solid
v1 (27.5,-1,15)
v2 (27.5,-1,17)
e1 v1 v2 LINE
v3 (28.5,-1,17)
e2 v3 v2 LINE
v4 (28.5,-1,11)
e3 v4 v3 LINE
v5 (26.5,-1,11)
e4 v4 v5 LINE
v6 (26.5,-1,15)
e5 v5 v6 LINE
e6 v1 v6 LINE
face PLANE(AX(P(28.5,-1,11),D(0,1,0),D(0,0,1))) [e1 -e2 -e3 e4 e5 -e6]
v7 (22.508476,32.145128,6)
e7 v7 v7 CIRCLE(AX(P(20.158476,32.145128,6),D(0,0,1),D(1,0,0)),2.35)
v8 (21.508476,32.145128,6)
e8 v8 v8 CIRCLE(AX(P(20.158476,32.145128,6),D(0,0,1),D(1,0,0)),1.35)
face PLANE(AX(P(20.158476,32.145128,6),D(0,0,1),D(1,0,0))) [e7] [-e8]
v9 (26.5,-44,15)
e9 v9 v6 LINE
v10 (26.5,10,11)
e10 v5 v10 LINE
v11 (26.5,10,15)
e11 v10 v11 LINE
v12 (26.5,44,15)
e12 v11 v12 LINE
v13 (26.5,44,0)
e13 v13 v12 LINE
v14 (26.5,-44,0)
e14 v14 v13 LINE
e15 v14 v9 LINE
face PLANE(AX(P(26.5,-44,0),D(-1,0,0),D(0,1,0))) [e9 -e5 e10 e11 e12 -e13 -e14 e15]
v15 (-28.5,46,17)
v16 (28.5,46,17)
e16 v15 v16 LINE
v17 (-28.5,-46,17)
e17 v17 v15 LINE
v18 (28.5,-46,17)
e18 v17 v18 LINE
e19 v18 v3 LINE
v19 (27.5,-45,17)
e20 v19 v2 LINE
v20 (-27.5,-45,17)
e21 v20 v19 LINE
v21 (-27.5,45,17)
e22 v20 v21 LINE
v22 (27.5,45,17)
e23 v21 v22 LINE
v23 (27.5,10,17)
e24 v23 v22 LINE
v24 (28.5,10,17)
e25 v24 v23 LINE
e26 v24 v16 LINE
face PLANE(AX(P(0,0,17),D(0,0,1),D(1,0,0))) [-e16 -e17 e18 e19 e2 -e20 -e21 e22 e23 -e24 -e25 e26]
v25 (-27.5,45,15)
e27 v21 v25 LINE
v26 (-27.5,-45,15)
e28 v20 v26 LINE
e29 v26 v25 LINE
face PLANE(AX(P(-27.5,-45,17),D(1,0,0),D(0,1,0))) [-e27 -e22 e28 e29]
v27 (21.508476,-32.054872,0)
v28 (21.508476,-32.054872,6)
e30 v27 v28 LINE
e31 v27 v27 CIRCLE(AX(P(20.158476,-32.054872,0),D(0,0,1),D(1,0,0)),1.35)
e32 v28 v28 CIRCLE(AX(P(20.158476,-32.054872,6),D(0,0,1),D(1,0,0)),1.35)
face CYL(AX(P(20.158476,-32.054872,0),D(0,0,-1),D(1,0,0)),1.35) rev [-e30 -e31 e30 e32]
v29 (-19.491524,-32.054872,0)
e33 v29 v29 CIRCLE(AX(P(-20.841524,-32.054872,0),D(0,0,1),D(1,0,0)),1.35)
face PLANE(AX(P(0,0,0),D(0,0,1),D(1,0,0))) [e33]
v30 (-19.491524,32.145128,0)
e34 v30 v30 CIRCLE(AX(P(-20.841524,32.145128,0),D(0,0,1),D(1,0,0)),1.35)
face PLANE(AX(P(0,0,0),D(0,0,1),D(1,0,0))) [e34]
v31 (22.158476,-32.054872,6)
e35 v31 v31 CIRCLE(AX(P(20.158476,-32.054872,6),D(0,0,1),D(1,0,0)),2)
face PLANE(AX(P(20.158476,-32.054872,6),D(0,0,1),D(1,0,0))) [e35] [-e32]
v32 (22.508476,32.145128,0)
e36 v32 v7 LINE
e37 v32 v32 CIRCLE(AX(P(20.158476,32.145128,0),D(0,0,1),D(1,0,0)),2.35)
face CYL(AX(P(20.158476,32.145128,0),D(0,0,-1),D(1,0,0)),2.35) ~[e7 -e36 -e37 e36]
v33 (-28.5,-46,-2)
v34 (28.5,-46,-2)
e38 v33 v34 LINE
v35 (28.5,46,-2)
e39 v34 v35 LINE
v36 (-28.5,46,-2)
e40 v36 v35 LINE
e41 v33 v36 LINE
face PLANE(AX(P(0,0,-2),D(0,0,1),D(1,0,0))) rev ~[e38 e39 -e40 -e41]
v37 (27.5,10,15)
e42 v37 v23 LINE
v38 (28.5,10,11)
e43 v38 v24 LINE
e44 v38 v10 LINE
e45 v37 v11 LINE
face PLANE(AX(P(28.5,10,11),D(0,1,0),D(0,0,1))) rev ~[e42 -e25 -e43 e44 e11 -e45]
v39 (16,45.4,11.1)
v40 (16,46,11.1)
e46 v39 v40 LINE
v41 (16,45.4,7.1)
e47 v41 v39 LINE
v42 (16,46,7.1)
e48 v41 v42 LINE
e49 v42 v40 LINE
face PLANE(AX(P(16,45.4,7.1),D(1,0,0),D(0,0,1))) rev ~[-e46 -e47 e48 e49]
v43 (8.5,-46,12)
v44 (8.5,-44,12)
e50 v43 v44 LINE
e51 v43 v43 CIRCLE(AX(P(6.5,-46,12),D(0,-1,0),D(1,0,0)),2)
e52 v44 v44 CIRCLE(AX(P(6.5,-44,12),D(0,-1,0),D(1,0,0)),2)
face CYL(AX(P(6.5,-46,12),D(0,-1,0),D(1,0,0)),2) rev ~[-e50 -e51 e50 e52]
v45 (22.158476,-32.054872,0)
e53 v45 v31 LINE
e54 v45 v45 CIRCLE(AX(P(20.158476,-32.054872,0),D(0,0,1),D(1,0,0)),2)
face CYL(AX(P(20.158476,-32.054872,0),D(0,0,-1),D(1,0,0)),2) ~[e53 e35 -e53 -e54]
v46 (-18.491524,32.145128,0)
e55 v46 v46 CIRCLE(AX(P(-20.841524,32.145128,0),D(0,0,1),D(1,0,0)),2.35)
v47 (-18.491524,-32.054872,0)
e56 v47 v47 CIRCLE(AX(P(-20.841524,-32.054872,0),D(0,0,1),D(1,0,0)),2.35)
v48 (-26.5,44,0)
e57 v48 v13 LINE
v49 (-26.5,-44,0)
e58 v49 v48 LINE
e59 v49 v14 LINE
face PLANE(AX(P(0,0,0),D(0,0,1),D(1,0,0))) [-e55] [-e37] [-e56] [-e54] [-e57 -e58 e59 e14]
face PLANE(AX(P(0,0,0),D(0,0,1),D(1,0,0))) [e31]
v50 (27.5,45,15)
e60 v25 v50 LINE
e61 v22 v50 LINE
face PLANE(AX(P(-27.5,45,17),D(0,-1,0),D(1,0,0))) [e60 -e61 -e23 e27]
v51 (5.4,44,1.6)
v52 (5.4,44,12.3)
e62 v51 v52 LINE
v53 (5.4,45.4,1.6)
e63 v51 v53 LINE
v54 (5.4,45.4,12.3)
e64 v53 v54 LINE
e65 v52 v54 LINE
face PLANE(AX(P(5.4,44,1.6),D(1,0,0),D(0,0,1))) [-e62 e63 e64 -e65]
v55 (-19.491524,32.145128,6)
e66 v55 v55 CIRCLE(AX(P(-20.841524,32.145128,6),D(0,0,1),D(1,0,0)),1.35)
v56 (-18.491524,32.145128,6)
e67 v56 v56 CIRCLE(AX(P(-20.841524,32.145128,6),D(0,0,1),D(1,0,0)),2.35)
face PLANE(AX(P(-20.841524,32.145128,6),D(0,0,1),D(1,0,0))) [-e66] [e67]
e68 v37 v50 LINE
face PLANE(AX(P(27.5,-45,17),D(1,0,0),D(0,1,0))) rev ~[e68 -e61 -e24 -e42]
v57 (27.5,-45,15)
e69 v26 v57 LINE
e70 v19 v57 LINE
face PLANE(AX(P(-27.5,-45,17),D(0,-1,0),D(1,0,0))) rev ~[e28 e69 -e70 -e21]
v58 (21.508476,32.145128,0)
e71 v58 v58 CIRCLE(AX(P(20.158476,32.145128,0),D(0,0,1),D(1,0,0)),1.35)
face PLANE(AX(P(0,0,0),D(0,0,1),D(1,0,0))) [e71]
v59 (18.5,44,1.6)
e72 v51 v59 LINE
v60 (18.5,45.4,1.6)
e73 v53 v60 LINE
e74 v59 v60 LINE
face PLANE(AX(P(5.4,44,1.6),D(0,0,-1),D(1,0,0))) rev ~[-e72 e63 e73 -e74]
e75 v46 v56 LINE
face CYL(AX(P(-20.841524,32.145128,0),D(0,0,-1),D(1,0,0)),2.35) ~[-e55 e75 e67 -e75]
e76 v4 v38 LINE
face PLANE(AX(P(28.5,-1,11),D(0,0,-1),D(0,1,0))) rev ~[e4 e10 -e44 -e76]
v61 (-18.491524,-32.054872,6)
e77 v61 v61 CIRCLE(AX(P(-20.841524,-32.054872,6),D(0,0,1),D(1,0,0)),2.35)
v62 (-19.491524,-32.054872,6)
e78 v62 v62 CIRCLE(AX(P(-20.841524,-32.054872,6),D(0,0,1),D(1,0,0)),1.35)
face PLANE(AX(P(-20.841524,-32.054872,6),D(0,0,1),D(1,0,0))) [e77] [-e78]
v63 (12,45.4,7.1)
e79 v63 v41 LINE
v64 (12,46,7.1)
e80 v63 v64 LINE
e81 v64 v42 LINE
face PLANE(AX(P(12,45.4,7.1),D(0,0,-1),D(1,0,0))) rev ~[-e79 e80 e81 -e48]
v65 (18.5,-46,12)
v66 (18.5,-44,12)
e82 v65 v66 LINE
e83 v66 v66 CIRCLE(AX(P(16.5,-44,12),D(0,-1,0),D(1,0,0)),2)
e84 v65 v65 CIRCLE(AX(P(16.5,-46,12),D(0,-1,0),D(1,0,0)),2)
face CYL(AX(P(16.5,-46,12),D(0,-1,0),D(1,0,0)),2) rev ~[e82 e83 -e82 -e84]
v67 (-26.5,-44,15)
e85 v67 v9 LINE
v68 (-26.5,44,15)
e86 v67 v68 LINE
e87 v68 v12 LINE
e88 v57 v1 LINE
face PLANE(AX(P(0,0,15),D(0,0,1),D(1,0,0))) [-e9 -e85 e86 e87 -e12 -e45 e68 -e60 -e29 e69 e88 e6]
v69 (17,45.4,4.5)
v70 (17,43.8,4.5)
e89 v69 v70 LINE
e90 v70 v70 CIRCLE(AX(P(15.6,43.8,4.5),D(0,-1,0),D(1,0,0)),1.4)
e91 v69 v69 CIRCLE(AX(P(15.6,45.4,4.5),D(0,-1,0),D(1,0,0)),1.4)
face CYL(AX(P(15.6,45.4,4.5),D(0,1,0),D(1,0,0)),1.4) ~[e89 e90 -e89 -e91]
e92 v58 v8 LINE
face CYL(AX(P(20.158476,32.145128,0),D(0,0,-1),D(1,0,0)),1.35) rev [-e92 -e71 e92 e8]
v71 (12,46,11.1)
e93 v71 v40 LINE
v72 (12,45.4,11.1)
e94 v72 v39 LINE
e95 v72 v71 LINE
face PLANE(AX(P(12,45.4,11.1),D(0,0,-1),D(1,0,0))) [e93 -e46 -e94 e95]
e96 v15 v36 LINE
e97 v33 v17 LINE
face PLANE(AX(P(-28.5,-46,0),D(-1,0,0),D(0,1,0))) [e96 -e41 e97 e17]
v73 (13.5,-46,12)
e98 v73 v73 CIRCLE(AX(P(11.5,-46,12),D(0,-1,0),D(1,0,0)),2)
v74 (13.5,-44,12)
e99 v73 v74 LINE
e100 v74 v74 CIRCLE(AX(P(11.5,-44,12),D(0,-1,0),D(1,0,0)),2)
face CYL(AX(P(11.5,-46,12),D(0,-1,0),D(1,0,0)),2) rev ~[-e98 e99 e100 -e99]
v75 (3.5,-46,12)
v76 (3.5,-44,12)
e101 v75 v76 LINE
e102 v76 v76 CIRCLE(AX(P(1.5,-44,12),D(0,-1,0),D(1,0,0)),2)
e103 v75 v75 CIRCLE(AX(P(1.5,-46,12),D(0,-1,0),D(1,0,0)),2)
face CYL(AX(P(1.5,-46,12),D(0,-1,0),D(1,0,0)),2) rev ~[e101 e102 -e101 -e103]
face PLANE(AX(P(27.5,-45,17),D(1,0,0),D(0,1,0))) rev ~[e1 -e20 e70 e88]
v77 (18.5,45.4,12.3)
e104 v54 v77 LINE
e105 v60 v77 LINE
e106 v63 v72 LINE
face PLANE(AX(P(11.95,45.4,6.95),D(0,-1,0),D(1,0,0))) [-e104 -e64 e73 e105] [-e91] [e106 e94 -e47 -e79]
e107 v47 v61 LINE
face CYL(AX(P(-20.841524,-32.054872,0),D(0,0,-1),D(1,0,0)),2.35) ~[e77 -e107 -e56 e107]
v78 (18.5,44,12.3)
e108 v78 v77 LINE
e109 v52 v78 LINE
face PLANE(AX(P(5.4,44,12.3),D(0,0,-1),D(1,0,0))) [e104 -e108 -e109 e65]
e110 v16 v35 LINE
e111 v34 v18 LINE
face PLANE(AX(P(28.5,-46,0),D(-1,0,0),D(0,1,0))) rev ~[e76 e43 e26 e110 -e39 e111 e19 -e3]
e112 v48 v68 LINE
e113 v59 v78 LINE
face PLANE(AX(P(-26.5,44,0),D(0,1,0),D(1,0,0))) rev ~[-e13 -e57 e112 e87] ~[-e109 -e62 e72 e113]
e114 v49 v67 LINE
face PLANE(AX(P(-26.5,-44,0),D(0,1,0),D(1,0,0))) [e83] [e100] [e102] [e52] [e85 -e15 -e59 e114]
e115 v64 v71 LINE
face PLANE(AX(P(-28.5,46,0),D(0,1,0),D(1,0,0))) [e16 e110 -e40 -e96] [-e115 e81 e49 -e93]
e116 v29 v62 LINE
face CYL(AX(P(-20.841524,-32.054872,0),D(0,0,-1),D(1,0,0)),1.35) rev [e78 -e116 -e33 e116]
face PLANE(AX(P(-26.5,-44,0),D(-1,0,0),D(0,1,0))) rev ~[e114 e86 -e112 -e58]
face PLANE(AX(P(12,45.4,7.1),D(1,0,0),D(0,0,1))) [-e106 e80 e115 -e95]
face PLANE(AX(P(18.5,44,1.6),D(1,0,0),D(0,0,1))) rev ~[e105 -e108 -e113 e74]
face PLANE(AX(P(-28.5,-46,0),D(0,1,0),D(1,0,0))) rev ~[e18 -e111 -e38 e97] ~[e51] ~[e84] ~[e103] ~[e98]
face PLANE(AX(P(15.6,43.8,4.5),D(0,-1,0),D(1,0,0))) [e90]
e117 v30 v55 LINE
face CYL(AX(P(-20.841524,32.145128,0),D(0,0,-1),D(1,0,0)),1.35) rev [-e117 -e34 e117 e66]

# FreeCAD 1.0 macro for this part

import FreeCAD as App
import Part
import Sketcher


def add_polygon(sketch, points):
    """Adds a closed chain of lines whose ends are joined by coincident constraints."""
    first, n = sketch.GeometryCount, len(points)
    for a, b in zip(points, points[1:] + points[:1]):
        sketch.addGeometry(Part.LineSegment(App.Vector(*a, 0), App.Vector(*b, 0)), False)
    for i in range(n):
        sketch.addConstraint(Sketcher.Constraint("Coincident", first + i, 2, first + (i + 1) % n, 1))

doc = App.newDocument("Part")
body = doc.addObject("PartDesign::Body", "Body")

# Sketch on XY plane
sketch1 = body.newObject("Sketcher::SketchObject", "Sketch")
sketch1.AttachmentSupport = (doc.getObject("XY_Plane"), [""])
sketch1.MapMode = "FlatFace"
add_polygon(sketch1, [(-28.5, 46), (-28.5, -46), (28.5, -46), (28.5, 46)])  # lines 0-3
sketch1.addConstraint([
    Sketcher.Constraint("Vertical", 0),
    Sketcher.Constraint("Horizontal", 1),
    Sketcher.Constraint("Vertical", 2),
    Sketcher.Constraint("Horizontal", 3),
    Sketcher.Constraint("Symmetric", 0, 2, 2, 2, -1, 1),
    Sketcher.Constraint("DistanceX", 1, 1, 1, 2, 57.0),
    Sketcher.Constraint("DistanceY", 0, 2, 0, 1, 92.0),
])
pad1 = body.newObject("PartDesign::Pad", "Pad")
pad1.Profile = sketch1
pad1.Length = 2
pad1.Reversed = True

# Sketch on XY plane
sketch2 = body.newObject("Sketcher::SketchObject", "Sketch001")
sketch2.AttachmentSupport = (doc.getObject("XY_Plane"), [""])
sketch2.MapMode = "FlatFace"
add_polygon(sketch2, [(-28.5, 46), (-28.5, -46), (28.5, -46), (28.5, 46)])  # lines 0-3
add_polygon(sketch2, [(26.5, -44), (-26.5, -44), (-26.5, 44), (26.5, 44)])  # lines 4-7
sketch2.addConstraint([
    Sketcher.Constraint("Vertical", 0),
    Sketcher.Constraint("Horizontal", 1),
    Sketcher.Constraint("Vertical", 2),
    Sketcher.Constraint("Horizontal", 3),
    Sketcher.Constraint("Horizontal", 4),
    Sketcher.Constraint("Vertical", 5),
    Sketcher.Constraint("Horizontal", 6),
    Sketcher.Constraint("Vertical", 7),
    Sketcher.Constraint("Symmetric", 0, 2, 2, 2, -1, 1),
    Sketcher.Constraint("Symmetric", 4, 2, 6, 2, -1, 1),
    Sketcher.Constraint("DistanceX", 1, 1, 1, 2, 57.0),
    Sketcher.Constraint("DistanceX", 4, 2, 4, 1, 53.0),
    Sketcher.Constraint("DistanceY", 0, 2, 0, 1, 92.0),
    Sketcher.Constraint("DistanceY", 5, 1, 5, 2, 88.0),
])
pad2 = body.newObject("PartDesign::Pad", "Pad001")
pad2.Profile = sketch2
pad2.Length = 17

# Sketch on XY plane
sketch3 = body.newObject("Sketcher::SketchObject", "Sketch002")
sketch3.AttachmentSupport = (doc.getObject("XY_Plane"), [""])
sketch3.MapMode = "FlatFace"
sketch3.addGeometry([
    Part.Circle(App.Vector(-20.841524, 32.145128, 0), App.Vector(0, 0, 1), 2.35),  # 0
    Part.Circle(App.Vector(-20.841524, 32.145128, 0), App.Vector(0, 0, 1), 1.35),  # 1
    Part.Circle(App.Vector(20.158476, 32.145128, 0), App.Vector(0, 0, 1), 2.35),  # 2
    Part.Circle(App.Vector(20.158476, 32.145128, 0), App.Vector(0, 0, 1), 1.35),  # 3
    Part.Circle(App.Vector(20.158476, -32.054872, 0), App.Vector(0, 0, 1), 2),  # 4
    Part.Circle(App.Vector(20.158476, -32.054872, 0), App.Vector(0, 0, 1), 1.35),  # 5
    Part.Circle(App.Vector(-20.841524, -32.054872, 0), App.Vector(0, 0, 1), 2.35),  # 6
    Part.Circle(App.Vector(-20.841524, -32.054872, 0), App.Vector(0, 0, 1), 1.35),  # 7
], False)
sketch3.addConstraint([
    Sketcher.Constraint("Coincident", 1, 3, 0, 3),
    Sketcher.Constraint("Coincident", 3, 3, 2, 3),
    Sketcher.Constraint("Coincident", 5, 3, 4, 3),
    Sketcher.Constraint("Coincident", 7, 3, 6, 3),
    Sketcher.Constraint("Equal", 0, 2),
    Sketcher.Constraint("Equal", 1, 3),
    Sketcher.Constraint("Equal", 3, 5),
    Sketcher.Constraint("Equal", 2, 6),
    Sketcher.Constraint("Equal", 5, 7),
    Sketcher.Constraint("Horizontal", 1, 3, 2, 3),
    Sketcher.Constraint("Horizontal", 5, 3, 6, 3),
    Sketcher.Constraint("Vertical", 3, 3, 4, 3),
    Sketcher.Constraint("Vertical", 1, 3, 6, 3),
    Sketcher.Constraint("Diameter", 4, 4.0),
    Sketcher.Constraint("Diameter", 0, 4.7),
    Sketcher.Constraint("Diameter", 1, 2.7),
    Sketcher.Constraint("DistanceX", 0, 3, 2, 3, 41.0),
    Sketcher.Constraint("DistanceY", 4, 3, 2, 3, 64.2),
    Sketcher.Constraint("DistanceX", 0, 3, -1, 1, 20.841524),
    Sketcher.Constraint("DistanceY", -1, 1, 0, 3, 32.145128),
])
pad3 = body.newObject("PartDesign::Pad", "Pad002")
pad3.Profile = sketch3
pad3.Length = 6

# Sketch on XY plane
sketch4 = body.newObject("Sketcher::SketchObject", "Sketch003")
sketch4.AttachmentSupport = (doc.getObject("XY_Plane"), [""])
sketch4.MapMode = "FlatFace"
sketch4.AttachmentOffset = App.Placement(App.Vector(0, 0, 17), App.Rotation())
add_polygon(sketch4, [(-27.5, 45), (-27.5, -45), (27.5, -45), (27.5, 45)])  # lines 0-3
sketch4.addConstraint([
    Sketcher.Constraint("Vertical", 0),
    Sketcher.Constraint("Horizontal", 1),
    Sketcher.Constraint("Vertical", 2),
    Sketcher.Constraint("Horizontal", 3),
    Sketcher.Constraint("Symmetric", 0, 2, 2, 2, -1, 1),
    Sketcher.Constraint("DistanceX", 1, 1, 1, 2, 55.0),
    Sketcher.Constraint("DistanceY", 0, 2, 0, 1, 90.0),
])
pocket1 = body.newObject("PartDesign::Pocket", "Pocket")
pocket1.Profile = sketch4
pocket1.Length = 2

# Sketch on XZ plane
sketch5 = body.newObject("Sketcher::SketchObject", "Sketch004")
sketch5.AttachmentSupport = (doc.getObject("XZ_Plane"), [""])
sketch5.MapMode = "FlatFace"
sketch5.AttachmentOffset = App.Placement(App.Vector(0, 0, -44), App.Rotation())
add_polygon(sketch5, [(5.4, 12.3), (5.4, 1.6), (18.5, 1.6), (18.5, 12.3)])  # lines 0-3
sketch5.addConstraint([
    Sketcher.Constraint("Vertical", 0),
    Sketcher.Constraint("Horizontal", 1),
    Sketcher.Constraint("Vertical", 2),
    Sketcher.Constraint("Horizontal", 3),
    Sketcher.Constraint("DistanceX", 1, 1, 1, 2, 13.1),
    Sketcher.Constraint("DistanceY", 0, 2, 0, 1, 10.7),
    Sketcher.Constraint("DistanceX", -1, 1, 0, 2, 5.4),
    Sketcher.Constraint("DistanceY", -1, 1, 0, 2, 1.6),
])
pocket2 = body.newObject("PartDesign::Pocket", "Pocket001")
pocket2.Profile = sketch5
pocket2.Length = 1.4

# Sketch on XZ plane
sketch6 = body.newObject("Sketcher::SketchObject", "Sketch005")
sketch6.AttachmentSupport = (doc.getObject("XZ_Plane"), [""])
sketch6.MapMode = "FlatFace"
sketch6.AttachmentOffset = App.Placement(App.Vector(0, 0, -45.4), App.Rotation())
sketch6.addGeometry(Part.Circle(App.Vector(15.6, 4.5, 0), App.Vector(0, 0, 1), 1.4), False)
sketch6.addConstraint([
    Sketcher.Constraint("Diameter", 0, 2.8),
    Sketcher.Constraint("DistanceX", -1, 1, 0, 3, 15.6),
    Sketcher.Constraint("DistanceY", -1, 1, 0, 3, 4.5),
])
pad4 = body.newObject("PartDesign::Pad", "Pad003")
pad4.Profile = sketch6
pad4.Length = 1.6

# Sketch on XZ plane
sketch7 = body.newObject("Sketcher::SketchObject", "Sketch006")
sketch7.AttachmentSupport = (doc.getObject("XZ_Plane"), [""])
sketch7.MapMode = "FlatFace"
sketch7.AttachmentOffset = App.Placement(App.Vector(0, 0, -45.4), App.Rotation())
add_polygon(sketch7, [(12, 11.1), (12, 7.1), (16, 7.1), (16, 11.1)])  # lines 0-3
sketch7.addConstraint([
    Sketcher.Constraint("Vertical", 0),
    Sketcher.Constraint("Horizontal", 1),
    Sketcher.Constraint("Vertical", 2),
    Sketcher.Constraint("Horizontal", 3),
    Sketcher.Constraint("Equal", 3, 0),
    Sketcher.Constraint("DistanceX", 1, 1, 1, 2, 4.0),
    Sketcher.Constraint("DistanceX", -1, 1, 0, 2, 12.0),
    Sketcher.Constraint("DistanceY", -1, 1, 0, 2, 7.1),
])
pocket3 = body.newObject("PartDesign::Pocket", "Pocket002")
pocket3.Profile = sketch7
pocket3.Length = 0.6

# Sketch on YZ plane
sketch8 = body.newObject("Sketcher::SketchObject", "Sketch007")
sketch8.AttachmentSupport = (doc.getObject("YZ_Plane"), [""])
sketch8.MapMode = "FlatFace"
sketch8.AttachmentOffset = App.Placement(App.Vector(0, 0, 28.5), App.Rotation())
add_polygon(sketch8, [(-1, 17), (-1, 11), (10, 11), (10, 17)])  # lines 0-3
sketch8.addConstraint([
    Sketcher.Constraint("Vertical", 0),
    Sketcher.Constraint("Horizontal", 1),
    Sketcher.Constraint("Vertical", 2),
    Sketcher.Constraint("Horizontal", 3),
    Sketcher.Constraint("DistanceX", 1, 1, 1, 2, 11.0),
    Sketcher.Constraint("DistanceY", 0, 2, 0, 1, 6.0),
    Sketcher.Constraint("DistanceX", 0, 2, -1, 1, 1.0),
    Sketcher.Constraint("DistanceY", -1, 1, 0, 2, 11.0),
])
pocket4 = body.newObject("PartDesign::Pocket", "Pocket003")
pocket4.Profile = sketch8
pocket4.Length = 2

# Sketch on XZ plane
sketch9 = body.newObject("Sketcher::SketchObject", "Sketch008")
sketch9.AttachmentSupport = (doc.getObject("XZ_Plane"), [""])
sketch9.MapMode = "FlatFace"
sketch9.AttachmentOffset = App.Placement(App.Vector(0, 0, 46), App.Rotation())
sketch9.addGeometry([
    Part.Circle(App.Vector(6.5, 12, 0), App.Vector(0, 0, 1), 2),
    Part.Circle(App.Vector(11.5, 12, 0), App.Vector(0, 0, 1), 2),
    Part.Circle(App.Vector(16.5, 12, 0), App.Vector(0, 0, 1), 2),
    Part.Circle(App.Vector(1.5, 12, 0), App.Vector(0, 0, 1), 2),
], False)
sketch9.addConstraint([
    Sketcher.Constraint("Equal", 0, 1),
    Sketcher.Constraint("Equal", 1, 2),
    Sketcher.Constraint("Equal", 2, 3),
    Sketcher.Constraint("Horizontal", 0, 3, 1, 3),
    Sketcher.Constraint("Horizontal", 1, 3, 2, 3),
    Sketcher.Constraint("Horizontal", 2, 3, 3, 3),
    Sketcher.Constraint("Diameter", 0, 4.0),
    Sketcher.Constraint("DistanceY", -1, 1, 0, 3, 12.0),
    Sketcher.Constraint("DistanceX", 0, 3, 1, 3, 5.0),
    Sketcher.Constraint("DistanceX", 1, 3, 2, 3, 5.0),
    Sketcher.Constraint("DistanceX", 3, 3, 0, 3, 5.0),
    Sketcher.Constraint("DistanceX", -1, 1, 0, 3, 6.5),
])
pocket5 = body.newObject("PartDesign::Pocket", "Pocket004")
pocket5.Profile = sketch9
pocket5.Length = 5

doc.recompute()
